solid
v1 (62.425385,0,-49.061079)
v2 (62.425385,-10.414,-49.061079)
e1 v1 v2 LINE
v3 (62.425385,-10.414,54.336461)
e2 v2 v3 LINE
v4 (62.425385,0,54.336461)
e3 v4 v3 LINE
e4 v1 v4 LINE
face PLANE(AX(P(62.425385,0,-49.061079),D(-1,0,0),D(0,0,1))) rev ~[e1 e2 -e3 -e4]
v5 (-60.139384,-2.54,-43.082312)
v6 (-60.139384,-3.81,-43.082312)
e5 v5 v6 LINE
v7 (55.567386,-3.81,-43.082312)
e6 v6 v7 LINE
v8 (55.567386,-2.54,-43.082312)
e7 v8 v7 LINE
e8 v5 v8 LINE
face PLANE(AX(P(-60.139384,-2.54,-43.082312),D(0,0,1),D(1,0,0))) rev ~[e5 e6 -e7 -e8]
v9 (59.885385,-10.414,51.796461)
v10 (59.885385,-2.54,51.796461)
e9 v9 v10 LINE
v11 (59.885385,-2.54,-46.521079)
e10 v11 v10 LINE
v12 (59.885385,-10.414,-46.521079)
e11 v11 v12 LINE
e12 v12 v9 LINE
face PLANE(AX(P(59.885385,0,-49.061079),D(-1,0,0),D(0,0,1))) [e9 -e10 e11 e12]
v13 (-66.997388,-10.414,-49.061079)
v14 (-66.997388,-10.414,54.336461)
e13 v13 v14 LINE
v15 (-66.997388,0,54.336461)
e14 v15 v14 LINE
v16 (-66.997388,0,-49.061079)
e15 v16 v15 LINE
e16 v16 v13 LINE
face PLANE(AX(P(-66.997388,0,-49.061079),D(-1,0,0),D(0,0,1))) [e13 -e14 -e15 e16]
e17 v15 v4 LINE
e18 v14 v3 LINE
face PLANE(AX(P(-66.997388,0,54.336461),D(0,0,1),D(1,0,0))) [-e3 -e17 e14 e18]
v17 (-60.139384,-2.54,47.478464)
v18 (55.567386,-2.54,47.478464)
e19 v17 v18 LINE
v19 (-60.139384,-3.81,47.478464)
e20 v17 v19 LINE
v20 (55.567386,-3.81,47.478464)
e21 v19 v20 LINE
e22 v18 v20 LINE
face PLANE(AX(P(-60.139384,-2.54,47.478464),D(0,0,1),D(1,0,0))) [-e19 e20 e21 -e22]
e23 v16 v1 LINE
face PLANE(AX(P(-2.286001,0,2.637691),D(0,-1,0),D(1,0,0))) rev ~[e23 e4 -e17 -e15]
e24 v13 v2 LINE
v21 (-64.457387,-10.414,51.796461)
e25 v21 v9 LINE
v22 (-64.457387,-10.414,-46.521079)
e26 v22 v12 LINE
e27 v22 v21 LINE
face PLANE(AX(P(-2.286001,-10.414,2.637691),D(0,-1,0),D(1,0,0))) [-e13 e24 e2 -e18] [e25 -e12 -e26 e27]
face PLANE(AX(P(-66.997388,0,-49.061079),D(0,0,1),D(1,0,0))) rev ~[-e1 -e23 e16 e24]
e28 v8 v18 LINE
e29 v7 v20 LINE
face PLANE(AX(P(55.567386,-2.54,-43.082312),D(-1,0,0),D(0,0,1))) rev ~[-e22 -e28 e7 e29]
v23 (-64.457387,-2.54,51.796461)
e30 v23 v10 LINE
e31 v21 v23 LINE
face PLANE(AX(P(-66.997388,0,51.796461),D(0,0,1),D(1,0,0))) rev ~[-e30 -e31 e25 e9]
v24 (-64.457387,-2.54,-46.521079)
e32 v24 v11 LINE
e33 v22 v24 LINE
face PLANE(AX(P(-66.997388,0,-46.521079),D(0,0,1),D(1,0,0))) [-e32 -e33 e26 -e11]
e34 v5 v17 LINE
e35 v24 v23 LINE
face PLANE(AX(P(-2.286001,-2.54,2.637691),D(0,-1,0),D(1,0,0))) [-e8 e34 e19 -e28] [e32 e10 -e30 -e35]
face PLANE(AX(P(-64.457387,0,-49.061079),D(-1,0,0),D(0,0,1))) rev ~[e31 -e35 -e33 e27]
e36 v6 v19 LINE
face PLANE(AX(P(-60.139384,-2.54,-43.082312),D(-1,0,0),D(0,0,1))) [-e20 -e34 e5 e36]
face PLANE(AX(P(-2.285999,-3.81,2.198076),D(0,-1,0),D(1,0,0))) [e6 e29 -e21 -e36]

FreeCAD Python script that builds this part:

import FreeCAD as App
import Part
import Sketcher

V = App.Vector
Q = App.Units.Quantity


def faces_at(feature, points):
    """Names of the faces that lie closest to the given points."""
    faces = feature.Shape.Faces
    near = lambda p: min(range(len(faces)), key=lambda i: faces[i].distToShape(Part.Vertex(*p))[0])
    return sorted({f"Face{near(p) + 1}" for p in points})

doc = App.newDocument("Part")
body = doc.addObject("PartDesign::Body", "Body")

# Sketch on XZ plane
sketch1 = body.newObject("Sketcher::SketchObject", "Sketch")
sketch1.AttachmentSupport = (doc.getObject("XZ_Plane"), [""])
sketch1.MapMode = "FlatFace"
sketch1.addGeometry(Part.LineSegment(V(-67, 54, 0), V(-67, -49, 0)), False)
sketch1.addGeometry(Part.LineSegment(V(-67, -49, 0), V(62, -49, 0)), False)
sketch1.addGeometry(Part.LineSegment(V(62, -49, 0), V(62, 54, 0)), False)
sketch1.addGeometry(Part.LineSegment(V(62, 54, 0), V(-67, 54, 0)), False)
sketch1.addConstraint(Sketcher.Constraint("Coincident", 0, 2, 1, 1))
sketch1.addConstraint(Sketcher.Constraint("Coincident", 1, 2, 2, 1))
sketch1.addConstraint(Sketcher.Constraint("Coincident", 2, 2, 3, 1))
sketch1.addConstraint(Sketcher.Constraint("Coincident", 3, 2, 0, 1))
sketch1.addConstraint(Sketcher.Constraint("Vertical", 0))
sketch1.addConstraint(Sketcher.Constraint("Horizontal", 1))
sketch1.addConstraint(Sketcher.Constraint("Vertical", 2))
sketch1.addConstraint(Sketcher.Constraint("Horizontal", 3))
sketch1.addConstraint(Sketcher.Constraint("DistanceY", 0, 2, 0, 1, 103.397541))
sketch1.addConstraint(Sketcher.Constraint("DistanceX", 1, 1, 1, 2, 129.422773))
sketch1.addConstraint(Sketcher.Constraint("DistanceY", 0, 2, -1, 1, 49.061079))
sketch1.addConstraint(Sketcher.Constraint("DistanceX", 0, 2, -1, 1, 66.997388))
pad1 = body.newObject("PartDesign::Pad", "Pad")
pad1.Profile = sketch1
pad1.Length = Q("0.41 in")
doc.recompute()

thickness = body.newObject("PartDesign::Thickness", "Thickness")
thickness.Base = (pad1, faces_at(pad1, [(-2.286, -10.414, 2.638)]))
thickness.Value = Q("0.1 in")
thickness.Reversed = True
thickness.Join = "Arc"

# Sketch on XZ plane
sketch2 = body.newObject("Sketcher::SketchObject", "Sketch001")
sketch2.AttachmentSupport = (doc.getObject("XZ_Plane"), [""])
sketch2.MapMode = "FlatFace"
sketch2.AttachmentOffset = App.Placement(V(0, 0, 0.1 * 25.4), App.Rotation())
sketch2.addGeometry(Part.LineSegment(V(-60, 47, 0), V(-60, -43, 0)), False)
sketch2.addGeometry(Part.LineSegment(V(-60, -43, 0), V(56, -43, 0)), False)
sketch2.addGeometry(Part.LineSegment(V(56, -43, 0), V(56, 47, 0)), False)
sketch2.addGeometry(Part.LineSegment(V(56, 47, 0), V(-60, 47, 0)), False)
sketch2.addConstraint(Sketcher.Constraint("Coincident", 0, 2, 1, 1))
sketch2.addConstraint(Sketcher.Constraint("Coincident", 1, 2, 2, 1))
sketch2.addConstraint(Sketcher.Constraint("Coincident", 2, 2, 3, 1))
sketch2.addConstraint(Sketcher.Constraint("Coincident", 3, 2, 0, 1))
sketch2.addConstraint(Sketcher.Constraint("Vertical", 0))
sketch2.addConstraint(Sketcher.Constraint("Horizontal", 1))
sketch2.addConstraint(Sketcher.Constraint("Vertical", 2))
sketch2.addConstraint(Sketcher.Constraint("Horizontal", 3))
sketch2.addConstraint(Sketcher.Constraint("DistanceX", 1, 1, 1, 2, 115.706771))
sketch2.addConstraint(Sketcher.Constraint("DistanceY", 0, 2, 0, 1, 90.560776))
sketch2.addConstraint(Sketcher.Constraint("DistanceX", 0, 2, -1, 1, 60.139384))
sketch2.addConstraint(Sketcher.Constraint("DistanceY", 0, 2, -1, 1, 43.082312))
pad2 = body.newObject("PartDesign::Pad", "Pad001")
pad2.Profile = sketch2
pad2.Length = Q("0.05 in")

doc.recompute()
